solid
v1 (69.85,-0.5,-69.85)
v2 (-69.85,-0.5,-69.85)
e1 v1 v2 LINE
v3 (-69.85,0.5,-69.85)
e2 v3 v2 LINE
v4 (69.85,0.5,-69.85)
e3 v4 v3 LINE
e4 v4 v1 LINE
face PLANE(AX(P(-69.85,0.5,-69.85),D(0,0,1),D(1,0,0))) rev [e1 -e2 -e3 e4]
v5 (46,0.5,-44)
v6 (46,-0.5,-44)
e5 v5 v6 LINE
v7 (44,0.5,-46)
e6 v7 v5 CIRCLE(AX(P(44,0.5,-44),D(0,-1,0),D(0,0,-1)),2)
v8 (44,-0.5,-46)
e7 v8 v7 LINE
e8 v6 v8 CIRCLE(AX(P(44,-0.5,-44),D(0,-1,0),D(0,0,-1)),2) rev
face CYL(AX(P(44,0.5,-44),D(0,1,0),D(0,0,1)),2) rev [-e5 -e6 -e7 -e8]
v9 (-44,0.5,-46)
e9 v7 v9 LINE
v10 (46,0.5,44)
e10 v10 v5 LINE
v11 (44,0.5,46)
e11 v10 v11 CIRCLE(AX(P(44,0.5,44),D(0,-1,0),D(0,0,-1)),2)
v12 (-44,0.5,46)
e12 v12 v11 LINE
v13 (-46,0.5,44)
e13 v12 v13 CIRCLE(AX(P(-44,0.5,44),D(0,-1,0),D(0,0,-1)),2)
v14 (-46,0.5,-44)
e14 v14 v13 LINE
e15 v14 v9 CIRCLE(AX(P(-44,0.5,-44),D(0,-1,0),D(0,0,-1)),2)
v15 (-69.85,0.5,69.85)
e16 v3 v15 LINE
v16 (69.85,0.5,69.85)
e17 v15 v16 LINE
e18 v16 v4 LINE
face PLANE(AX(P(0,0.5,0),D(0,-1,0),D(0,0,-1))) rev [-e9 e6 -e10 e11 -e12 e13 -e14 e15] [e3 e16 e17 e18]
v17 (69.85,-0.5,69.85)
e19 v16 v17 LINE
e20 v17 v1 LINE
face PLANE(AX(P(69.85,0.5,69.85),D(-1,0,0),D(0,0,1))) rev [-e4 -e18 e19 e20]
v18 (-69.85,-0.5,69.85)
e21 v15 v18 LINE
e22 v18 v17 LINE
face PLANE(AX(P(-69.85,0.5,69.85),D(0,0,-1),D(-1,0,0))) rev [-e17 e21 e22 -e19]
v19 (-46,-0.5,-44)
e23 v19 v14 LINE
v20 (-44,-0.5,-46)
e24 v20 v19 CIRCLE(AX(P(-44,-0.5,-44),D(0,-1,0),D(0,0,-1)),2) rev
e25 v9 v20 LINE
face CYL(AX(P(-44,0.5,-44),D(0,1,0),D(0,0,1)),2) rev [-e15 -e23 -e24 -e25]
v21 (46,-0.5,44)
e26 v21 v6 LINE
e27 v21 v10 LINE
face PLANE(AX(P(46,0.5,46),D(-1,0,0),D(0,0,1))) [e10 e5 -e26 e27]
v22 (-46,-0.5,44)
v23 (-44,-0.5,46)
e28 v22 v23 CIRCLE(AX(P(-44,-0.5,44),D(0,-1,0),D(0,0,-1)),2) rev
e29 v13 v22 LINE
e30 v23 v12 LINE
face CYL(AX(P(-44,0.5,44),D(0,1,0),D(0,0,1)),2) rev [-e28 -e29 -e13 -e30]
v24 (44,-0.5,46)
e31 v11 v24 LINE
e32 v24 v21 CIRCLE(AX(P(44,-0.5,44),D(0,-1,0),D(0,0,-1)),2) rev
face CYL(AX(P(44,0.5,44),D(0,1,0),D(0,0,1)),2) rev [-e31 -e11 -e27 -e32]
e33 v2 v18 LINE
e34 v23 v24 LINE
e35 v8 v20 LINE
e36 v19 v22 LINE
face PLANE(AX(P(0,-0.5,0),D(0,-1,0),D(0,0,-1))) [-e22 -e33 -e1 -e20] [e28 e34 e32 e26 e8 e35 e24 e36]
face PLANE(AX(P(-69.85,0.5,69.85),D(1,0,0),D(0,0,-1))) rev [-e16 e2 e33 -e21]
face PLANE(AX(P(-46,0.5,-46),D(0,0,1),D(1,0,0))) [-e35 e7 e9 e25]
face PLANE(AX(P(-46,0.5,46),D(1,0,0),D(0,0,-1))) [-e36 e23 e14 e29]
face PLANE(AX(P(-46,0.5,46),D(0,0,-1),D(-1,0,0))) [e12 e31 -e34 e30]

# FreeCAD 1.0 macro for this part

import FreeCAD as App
import Part
import Sketcher
from FreeCAD import Vector
Q = App.Units.Quantity


def edges_at(feature, points):
    """Names of the edges that pass closest to the given points."""
    edges = feature.Shape.Edges
    near = lambda p: min(range(len(edges)), key=lambda i: edges[i].distToShape(Part.Vertex(*p))[0])
    return sorted({f"Edge{near(p) + 1}" for p in points})

doc = App.newDocument("Part")
body = doc.addObject("PartDesign::Body", "Body")

# Sketch on XZ plane
sketch1 = doc.addObject("Sketcher::SketchObject", "Sketch")
body.addObject(sketch1)
sketch1.AttachmentSupport = (doc.XZ_Plane, [""])
sketch1.MapMode = "FlatFace"
sketch1.addGeometry([
    Part.LineSegment(Vector(-69.85, -69.85, 0), Vector(-69.85, 69.85, 0)),  # 0
    Part.LineSegment(Vector(-69.85, 69.85, 0), Vector(69.85, 69.85, 0)),  # 1
    Part.LineSegment(Vector(69.85, 69.85, 0), Vector(69.85, -69.85, 0)),  # 2
    Part.LineSegment(Vector(69.85, -69.85, 0), Vector(-69.85, -69.85, 0)),  # 3
    Part.LineSegment(Vector(46, 46, 0), Vector(-46, 46, 0)),  # 4
    Part.LineSegment(Vector(-46, 46, 0), Vector(-46, -46, 0)),  # 5
    Part.LineSegment(Vector(-46, -46, 0), Vector(46, -46, 0)),  # 6
    Part.LineSegment(Vector(46, -46, 0), Vector(46, 46, 0)),  # 7
], False)
sketch1.addConstraint([
    Sketcher.Constraint("Coincident", 0, 2, 1, 1),
    Sketcher.Constraint("Coincident", 1, 2, 2, 1),
    Sketcher.Constraint("Coincident", 2, 2, 3, 1),
    Sketcher.Constraint("Coincident", 3, 2, 0, 1),
    Sketcher.Constraint("Coincident", 4, 2, 5, 1),
    Sketcher.Constraint("Coincident", 5, 2, 6, 1),
    Sketcher.Constraint("Coincident", 6, 2, 7, 1),
    Sketcher.Constraint("Coincident", 7, 2, 4, 1),
    Sketcher.Constraint("Vertical", 0),
    Sketcher.Constraint("Horizontal", 1),
    Sketcher.Constraint("Vertical", 2),
    Sketcher.Constraint("Horizontal", 3),
    Sketcher.Constraint("Horizontal", 4),
    Sketcher.Constraint("Vertical", 5),
    Sketcher.Constraint("Horizontal", 6),
    Sketcher.Constraint("Vertical", 7),
    Sketcher.Constraint("Symmetric", 0, 2, 2, 2, -1, 1),
    Sketcher.Constraint("Symmetric", 4, 2, 6, 2, -1, 1),
    Sketcher.Constraint("Equal", 3, 0),
    Sketcher.Constraint("Equal", 6, 5),
    Sketcher.Constraint("DistanceX", 4, 2, 4, 1, Q("92 mm")),
    Sketcher.Constraint("DistanceX", 1, 1, 1, 2, Q("139.7 mm")),
])
pad1 = doc.addObject("PartDesign::Pad", "Pad")
body.addObject(pad1)
pad1.Profile = sketch1
pad1.Length = 1
pad1.Midplane = True
doc.recompute()

fillet = doc.addObject("PartDesign::Fillet", "Fillet")
body.addObject(fillet)
fillet.Base = (pad1, edges_at(pad1, [
    (46, 0, 46),
    (46, 0, -46),
    (-46, 0, -46),
    (-46, 0, 46),
]))
fillet.Radius = 2

doc.recompute()
